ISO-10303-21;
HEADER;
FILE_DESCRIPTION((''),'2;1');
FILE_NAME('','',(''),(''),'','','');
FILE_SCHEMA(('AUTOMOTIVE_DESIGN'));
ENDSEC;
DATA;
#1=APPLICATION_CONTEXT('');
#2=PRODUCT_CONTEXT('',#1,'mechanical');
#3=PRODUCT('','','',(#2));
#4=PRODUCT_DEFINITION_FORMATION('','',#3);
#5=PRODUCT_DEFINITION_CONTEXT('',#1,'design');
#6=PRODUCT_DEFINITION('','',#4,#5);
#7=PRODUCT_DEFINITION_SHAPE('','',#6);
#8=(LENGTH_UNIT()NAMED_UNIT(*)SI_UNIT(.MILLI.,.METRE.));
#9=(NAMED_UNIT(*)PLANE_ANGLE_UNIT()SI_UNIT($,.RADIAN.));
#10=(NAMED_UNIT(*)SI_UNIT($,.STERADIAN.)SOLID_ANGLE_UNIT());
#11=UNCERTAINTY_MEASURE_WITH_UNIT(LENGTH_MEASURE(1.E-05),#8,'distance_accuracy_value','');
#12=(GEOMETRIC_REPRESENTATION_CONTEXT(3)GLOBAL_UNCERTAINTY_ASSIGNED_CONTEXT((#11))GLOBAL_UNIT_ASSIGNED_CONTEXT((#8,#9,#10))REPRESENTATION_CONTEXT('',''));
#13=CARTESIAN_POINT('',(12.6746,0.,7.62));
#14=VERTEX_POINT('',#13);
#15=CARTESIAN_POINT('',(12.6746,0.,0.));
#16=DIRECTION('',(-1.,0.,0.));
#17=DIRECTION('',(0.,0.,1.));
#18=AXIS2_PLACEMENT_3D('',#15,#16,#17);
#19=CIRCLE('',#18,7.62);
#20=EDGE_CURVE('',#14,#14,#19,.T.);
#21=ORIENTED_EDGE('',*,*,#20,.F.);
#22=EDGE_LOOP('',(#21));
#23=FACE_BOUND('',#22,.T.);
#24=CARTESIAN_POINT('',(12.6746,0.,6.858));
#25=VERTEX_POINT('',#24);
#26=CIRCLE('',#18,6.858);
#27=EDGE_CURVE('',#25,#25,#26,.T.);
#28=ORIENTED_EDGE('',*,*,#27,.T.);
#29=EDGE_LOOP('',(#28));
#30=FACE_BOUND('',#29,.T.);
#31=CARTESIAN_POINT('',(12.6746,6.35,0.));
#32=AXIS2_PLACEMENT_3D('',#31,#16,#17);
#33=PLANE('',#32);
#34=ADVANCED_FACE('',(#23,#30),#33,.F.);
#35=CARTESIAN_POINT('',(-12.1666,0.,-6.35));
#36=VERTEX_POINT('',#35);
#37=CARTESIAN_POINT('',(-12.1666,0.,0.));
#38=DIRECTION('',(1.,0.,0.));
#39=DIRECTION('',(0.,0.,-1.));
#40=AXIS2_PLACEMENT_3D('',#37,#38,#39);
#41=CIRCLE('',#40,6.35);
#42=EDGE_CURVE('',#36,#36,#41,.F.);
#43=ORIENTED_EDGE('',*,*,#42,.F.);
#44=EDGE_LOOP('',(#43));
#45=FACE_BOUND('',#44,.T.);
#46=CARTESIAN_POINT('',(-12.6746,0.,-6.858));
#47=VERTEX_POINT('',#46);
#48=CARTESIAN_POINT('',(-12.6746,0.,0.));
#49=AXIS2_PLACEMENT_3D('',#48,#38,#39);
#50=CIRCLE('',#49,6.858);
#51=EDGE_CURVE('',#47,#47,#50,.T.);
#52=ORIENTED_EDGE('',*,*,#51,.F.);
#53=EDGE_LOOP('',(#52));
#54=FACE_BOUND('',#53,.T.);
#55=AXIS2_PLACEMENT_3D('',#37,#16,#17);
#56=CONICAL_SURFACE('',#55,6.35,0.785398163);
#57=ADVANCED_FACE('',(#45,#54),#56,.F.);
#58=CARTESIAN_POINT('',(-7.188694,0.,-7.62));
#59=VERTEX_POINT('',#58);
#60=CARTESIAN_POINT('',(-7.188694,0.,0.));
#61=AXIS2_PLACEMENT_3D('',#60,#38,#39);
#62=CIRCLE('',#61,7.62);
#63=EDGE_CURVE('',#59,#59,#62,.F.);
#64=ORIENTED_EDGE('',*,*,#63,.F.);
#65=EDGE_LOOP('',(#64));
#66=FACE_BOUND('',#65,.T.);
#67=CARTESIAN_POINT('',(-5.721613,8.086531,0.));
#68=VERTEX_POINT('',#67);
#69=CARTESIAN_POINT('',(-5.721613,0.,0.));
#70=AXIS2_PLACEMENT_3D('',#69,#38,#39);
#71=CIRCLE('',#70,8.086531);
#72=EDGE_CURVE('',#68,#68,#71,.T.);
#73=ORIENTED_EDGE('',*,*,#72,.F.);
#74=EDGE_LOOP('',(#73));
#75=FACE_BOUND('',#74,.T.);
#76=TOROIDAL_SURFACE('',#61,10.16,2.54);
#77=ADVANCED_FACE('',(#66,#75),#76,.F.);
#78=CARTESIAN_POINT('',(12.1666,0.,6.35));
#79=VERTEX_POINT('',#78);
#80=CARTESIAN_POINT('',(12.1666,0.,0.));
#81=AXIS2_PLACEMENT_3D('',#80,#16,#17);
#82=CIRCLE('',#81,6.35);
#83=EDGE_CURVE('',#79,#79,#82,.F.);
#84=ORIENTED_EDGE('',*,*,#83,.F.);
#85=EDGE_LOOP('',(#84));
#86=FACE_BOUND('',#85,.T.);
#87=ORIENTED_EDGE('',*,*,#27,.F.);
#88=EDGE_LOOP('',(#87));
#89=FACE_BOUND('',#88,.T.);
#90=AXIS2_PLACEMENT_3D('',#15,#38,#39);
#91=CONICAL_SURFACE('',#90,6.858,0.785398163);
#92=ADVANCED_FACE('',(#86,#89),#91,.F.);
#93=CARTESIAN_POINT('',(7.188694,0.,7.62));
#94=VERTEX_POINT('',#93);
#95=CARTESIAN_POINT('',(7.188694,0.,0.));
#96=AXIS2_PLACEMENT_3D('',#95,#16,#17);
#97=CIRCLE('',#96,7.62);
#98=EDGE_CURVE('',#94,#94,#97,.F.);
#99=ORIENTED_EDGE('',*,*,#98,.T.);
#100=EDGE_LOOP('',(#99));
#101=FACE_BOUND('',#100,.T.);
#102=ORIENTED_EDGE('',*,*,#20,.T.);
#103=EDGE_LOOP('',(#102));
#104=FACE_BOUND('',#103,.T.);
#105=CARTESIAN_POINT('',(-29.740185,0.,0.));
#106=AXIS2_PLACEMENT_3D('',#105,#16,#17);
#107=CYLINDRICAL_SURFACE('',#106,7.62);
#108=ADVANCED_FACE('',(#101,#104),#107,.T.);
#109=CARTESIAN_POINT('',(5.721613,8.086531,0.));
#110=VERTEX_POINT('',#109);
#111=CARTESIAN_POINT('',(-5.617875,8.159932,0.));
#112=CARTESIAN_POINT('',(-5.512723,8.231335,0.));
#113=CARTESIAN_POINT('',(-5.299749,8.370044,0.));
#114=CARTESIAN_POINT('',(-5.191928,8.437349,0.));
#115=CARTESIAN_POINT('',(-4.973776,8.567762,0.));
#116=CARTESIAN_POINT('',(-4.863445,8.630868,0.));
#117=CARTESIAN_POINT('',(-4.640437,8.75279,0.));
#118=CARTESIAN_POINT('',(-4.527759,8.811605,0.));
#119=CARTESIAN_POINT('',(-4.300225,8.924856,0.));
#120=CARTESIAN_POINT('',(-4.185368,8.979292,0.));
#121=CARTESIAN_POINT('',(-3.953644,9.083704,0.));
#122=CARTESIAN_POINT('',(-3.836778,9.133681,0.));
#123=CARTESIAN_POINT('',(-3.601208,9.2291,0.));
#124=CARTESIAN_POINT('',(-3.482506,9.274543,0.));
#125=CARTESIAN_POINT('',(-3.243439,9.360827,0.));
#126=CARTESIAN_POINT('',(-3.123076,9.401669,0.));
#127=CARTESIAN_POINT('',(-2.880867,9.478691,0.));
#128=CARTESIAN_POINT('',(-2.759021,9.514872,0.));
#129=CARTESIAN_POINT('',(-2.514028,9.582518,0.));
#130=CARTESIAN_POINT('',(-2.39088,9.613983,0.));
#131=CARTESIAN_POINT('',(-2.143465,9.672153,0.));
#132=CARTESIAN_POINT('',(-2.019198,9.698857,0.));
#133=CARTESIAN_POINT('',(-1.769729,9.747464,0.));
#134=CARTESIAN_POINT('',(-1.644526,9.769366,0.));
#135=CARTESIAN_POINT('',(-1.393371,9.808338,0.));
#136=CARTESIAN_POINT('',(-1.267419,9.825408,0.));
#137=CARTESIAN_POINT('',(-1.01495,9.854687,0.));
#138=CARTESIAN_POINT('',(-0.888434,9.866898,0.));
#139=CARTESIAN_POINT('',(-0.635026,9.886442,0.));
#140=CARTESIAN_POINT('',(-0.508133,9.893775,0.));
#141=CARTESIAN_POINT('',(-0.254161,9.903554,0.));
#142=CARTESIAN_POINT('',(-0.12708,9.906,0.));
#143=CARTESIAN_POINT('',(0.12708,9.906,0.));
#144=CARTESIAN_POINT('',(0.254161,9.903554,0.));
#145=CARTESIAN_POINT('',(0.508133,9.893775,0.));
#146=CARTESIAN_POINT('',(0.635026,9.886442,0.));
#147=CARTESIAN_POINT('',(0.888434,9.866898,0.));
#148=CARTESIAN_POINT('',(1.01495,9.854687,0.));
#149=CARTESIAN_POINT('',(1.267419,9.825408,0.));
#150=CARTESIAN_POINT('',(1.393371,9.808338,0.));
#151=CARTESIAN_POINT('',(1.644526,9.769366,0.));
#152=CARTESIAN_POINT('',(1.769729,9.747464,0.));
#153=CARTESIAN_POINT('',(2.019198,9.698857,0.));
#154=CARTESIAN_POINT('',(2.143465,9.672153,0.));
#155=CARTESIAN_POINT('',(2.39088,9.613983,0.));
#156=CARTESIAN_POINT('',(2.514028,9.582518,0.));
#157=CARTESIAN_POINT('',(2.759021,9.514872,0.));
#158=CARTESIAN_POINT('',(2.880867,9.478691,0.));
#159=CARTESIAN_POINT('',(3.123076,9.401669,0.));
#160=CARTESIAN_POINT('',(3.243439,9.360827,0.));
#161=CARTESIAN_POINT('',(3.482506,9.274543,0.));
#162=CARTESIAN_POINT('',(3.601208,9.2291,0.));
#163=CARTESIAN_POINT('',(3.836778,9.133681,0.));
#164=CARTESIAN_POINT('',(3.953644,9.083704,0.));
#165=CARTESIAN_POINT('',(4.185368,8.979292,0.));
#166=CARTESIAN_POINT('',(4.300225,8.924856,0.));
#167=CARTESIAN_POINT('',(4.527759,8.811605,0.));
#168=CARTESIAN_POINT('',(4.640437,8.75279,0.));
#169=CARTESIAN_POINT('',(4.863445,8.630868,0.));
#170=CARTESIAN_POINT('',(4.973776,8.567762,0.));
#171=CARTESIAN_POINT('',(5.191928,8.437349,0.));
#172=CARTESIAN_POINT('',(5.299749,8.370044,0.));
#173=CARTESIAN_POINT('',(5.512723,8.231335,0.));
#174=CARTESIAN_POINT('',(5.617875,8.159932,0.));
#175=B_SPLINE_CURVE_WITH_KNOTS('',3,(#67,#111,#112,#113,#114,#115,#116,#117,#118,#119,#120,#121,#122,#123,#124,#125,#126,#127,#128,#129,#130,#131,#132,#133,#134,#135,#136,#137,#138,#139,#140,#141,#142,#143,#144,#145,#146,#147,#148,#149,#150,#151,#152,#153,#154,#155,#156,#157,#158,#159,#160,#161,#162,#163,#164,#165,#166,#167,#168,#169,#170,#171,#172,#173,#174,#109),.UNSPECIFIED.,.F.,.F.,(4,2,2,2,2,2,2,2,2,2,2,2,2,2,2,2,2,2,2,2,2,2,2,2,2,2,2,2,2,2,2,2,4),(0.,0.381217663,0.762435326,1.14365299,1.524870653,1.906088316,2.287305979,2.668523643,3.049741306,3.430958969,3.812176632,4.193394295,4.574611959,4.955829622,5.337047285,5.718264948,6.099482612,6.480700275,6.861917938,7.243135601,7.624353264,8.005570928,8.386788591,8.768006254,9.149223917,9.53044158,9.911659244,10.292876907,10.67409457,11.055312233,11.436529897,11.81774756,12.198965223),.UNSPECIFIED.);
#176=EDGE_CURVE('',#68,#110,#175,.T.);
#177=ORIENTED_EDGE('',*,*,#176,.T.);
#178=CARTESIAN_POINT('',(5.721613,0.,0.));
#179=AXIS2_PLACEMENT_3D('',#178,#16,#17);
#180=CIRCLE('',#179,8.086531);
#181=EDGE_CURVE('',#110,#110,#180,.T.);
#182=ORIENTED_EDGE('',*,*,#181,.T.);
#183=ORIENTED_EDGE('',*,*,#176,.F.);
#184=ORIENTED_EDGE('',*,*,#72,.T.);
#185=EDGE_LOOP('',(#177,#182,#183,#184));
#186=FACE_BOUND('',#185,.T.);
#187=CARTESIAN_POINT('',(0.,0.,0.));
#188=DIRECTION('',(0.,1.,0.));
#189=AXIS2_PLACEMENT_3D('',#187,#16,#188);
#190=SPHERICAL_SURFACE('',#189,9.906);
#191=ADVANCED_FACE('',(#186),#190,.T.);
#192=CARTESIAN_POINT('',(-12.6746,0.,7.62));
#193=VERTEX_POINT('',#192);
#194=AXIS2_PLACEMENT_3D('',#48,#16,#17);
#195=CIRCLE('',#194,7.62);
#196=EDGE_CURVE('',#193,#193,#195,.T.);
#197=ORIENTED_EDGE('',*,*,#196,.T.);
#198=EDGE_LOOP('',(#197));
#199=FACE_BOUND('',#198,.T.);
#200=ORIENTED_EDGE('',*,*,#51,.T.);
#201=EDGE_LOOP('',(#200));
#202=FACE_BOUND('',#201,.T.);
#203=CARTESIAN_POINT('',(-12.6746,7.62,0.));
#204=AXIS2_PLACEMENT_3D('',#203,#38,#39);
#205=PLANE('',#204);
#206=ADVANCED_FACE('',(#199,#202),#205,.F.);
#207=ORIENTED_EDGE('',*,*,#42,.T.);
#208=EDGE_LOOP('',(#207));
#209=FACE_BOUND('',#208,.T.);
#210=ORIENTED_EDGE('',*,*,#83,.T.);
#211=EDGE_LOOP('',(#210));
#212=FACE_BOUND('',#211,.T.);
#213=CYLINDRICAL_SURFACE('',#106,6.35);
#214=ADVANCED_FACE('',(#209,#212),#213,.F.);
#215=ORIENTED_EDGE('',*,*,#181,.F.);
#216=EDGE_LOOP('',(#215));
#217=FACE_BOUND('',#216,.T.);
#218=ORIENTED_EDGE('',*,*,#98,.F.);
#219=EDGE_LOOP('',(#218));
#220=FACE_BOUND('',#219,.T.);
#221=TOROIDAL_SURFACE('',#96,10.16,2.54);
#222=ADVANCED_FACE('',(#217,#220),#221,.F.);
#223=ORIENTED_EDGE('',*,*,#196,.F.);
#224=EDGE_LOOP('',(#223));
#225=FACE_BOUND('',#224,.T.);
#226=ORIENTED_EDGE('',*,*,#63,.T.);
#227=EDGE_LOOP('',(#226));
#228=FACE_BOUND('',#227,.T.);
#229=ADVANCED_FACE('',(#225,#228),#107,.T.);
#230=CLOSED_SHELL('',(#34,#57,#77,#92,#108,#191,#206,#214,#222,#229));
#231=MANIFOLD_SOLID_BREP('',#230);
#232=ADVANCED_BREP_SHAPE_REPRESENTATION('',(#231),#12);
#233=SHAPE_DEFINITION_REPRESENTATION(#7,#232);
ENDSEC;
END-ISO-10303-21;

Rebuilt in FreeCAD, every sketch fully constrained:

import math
import FreeCAD as App
import Part
import Sketcher

V = App.Vector
Q = App.Units.Quantity


def edges_at(feature, points):
    """Names of the edges that pass closest to the given points."""
    edges = feature.Shape.Edges
    near = lambda p: min(range(len(edges)), key=lambda i: edges[i].distToShape(Part.Vertex(*p))[0])
    return sorted({f"Edge{near(p) + 1}" for p in points})

doc = App.newDocument("Part")
body = doc.addObject("PartDesign::Body", "Body")

sketch1 = body.newObject("Sketcher::SketchObject", "Sketch")
sketch1.AttachmentSupport = (doc.getObject("XY_Plane"), [""])
sketch1.MapMode = "FlatFace"
sketch1.addGeometry(Part.LineSegment(V(-12.6746, 6.35, 0), V(12.6746, 6.35, 0)), False)
sketch1.addGeometry(Part.LineSegment(V(12.6746, 6.35, 0), V(12.6746, 7.62, 0)), False)
sketch1.addGeometry(Part.LineSegment(V(12.6746, 7.62, 0), V(6.329647, 7.62, 0)), False)
sketch1.addGeometry(Part.ArcOfCircle(Part.Circle(V(0, 0, 0), V(0, 0, 1), 9.906), math.radians(50.284863), math.radians(129.715137)), False)
sketch1.addGeometry(Part.LineSegment(V(-6.329647, 7.62, 0), V(-12.6746, 7.62, 0)), False)
sketch1.addGeometry(Part.LineSegment(V(-12.6746, 7.62, 0), V(-12.6746, 6.35, 0)), False)
sketch1.addConstraint(Sketcher.Constraint("Coincident", 0, 2, 1, 1))
sketch1.addConstraint(Sketcher.Constraint("Coincident", 1, 2, 2, 1))
sketch1.addConstraint(Sketcher.Constraint("Coincident", 2, 2, 3, 1))
sketch1.addConstraint(Sketcher.Constraint("Coincident", 3, 2, 4, 1))
sketch1.addConstraint(Sketcher.Constraint("Coincident", 4, 2, 5, 1))
sketch1.addConstraint(Sketcher.Constraint("Coincident", 5, 2, 0, 1))
sketch1.addConstraint(Sketcher.Constraint("Horizontal", 0))
sketch1.addConstraint(Sketcher.Constraint("Vertical", 1))
sketch1.addConstraint(Sketcher.Constraint("Horizontal", 2))
sketch1.addConstraint(Sketcher.Constraint("Horizontal", 4))
sketch1.addConstraint(Sketcher.Constraint("Vertical", 5))
sketch1.addConstraint(Sketcher.Constraint("Coincident", 3, 3, -1, 1))
sketch1.addConstraint(Sketcher.Constraint("Symmetric", 1, 2, 4, 2, -2))
sketch1.addConstraint(Sketcher.Constraint("Radius", 3, Q("0.39 in")))
sketch1.addConstraint(Sketcher.Constraint("DistanceY", 1, 1, 1, 2, Q("0.05 in")))
sketch1.addConstraint(Sketcher.Constraint("DistanceY", -1, 1, 1, 2, Q("0.3 in")))
sketch1.addConstraint(Sketcher.Constraint("DistanceX", 0, 1, 0, 2, Q("0.998 in")))
revolution = body.newObject("PartDesign::Revolution", "Revolution")
revolution.Profile = sketch1
revolution.ReferenceAxis = (sketch1, ["H_Axis"])
revolution.Angle = 360
doc.recompute()

fillet = body.newObject("PartDesign::Fillet", "Fillet")
fillet.Base = (revolution, edges_at(revolution, [(-6.33, 0, -7.62), (6.33, 0, -7.62)]))
fillet.Radius = Q("0.1 in")
doc.recompute()

chamfer = body.newObject("PartDesign::Chamfer", "Chamfer")
chamfer.Base = (fillet, edges_at(fillet, [(12.675, 0, -6.35), (-12.675, 0, -6.35)]))
chamfer.Size = Q("0.02 in")

doc.recompute()
